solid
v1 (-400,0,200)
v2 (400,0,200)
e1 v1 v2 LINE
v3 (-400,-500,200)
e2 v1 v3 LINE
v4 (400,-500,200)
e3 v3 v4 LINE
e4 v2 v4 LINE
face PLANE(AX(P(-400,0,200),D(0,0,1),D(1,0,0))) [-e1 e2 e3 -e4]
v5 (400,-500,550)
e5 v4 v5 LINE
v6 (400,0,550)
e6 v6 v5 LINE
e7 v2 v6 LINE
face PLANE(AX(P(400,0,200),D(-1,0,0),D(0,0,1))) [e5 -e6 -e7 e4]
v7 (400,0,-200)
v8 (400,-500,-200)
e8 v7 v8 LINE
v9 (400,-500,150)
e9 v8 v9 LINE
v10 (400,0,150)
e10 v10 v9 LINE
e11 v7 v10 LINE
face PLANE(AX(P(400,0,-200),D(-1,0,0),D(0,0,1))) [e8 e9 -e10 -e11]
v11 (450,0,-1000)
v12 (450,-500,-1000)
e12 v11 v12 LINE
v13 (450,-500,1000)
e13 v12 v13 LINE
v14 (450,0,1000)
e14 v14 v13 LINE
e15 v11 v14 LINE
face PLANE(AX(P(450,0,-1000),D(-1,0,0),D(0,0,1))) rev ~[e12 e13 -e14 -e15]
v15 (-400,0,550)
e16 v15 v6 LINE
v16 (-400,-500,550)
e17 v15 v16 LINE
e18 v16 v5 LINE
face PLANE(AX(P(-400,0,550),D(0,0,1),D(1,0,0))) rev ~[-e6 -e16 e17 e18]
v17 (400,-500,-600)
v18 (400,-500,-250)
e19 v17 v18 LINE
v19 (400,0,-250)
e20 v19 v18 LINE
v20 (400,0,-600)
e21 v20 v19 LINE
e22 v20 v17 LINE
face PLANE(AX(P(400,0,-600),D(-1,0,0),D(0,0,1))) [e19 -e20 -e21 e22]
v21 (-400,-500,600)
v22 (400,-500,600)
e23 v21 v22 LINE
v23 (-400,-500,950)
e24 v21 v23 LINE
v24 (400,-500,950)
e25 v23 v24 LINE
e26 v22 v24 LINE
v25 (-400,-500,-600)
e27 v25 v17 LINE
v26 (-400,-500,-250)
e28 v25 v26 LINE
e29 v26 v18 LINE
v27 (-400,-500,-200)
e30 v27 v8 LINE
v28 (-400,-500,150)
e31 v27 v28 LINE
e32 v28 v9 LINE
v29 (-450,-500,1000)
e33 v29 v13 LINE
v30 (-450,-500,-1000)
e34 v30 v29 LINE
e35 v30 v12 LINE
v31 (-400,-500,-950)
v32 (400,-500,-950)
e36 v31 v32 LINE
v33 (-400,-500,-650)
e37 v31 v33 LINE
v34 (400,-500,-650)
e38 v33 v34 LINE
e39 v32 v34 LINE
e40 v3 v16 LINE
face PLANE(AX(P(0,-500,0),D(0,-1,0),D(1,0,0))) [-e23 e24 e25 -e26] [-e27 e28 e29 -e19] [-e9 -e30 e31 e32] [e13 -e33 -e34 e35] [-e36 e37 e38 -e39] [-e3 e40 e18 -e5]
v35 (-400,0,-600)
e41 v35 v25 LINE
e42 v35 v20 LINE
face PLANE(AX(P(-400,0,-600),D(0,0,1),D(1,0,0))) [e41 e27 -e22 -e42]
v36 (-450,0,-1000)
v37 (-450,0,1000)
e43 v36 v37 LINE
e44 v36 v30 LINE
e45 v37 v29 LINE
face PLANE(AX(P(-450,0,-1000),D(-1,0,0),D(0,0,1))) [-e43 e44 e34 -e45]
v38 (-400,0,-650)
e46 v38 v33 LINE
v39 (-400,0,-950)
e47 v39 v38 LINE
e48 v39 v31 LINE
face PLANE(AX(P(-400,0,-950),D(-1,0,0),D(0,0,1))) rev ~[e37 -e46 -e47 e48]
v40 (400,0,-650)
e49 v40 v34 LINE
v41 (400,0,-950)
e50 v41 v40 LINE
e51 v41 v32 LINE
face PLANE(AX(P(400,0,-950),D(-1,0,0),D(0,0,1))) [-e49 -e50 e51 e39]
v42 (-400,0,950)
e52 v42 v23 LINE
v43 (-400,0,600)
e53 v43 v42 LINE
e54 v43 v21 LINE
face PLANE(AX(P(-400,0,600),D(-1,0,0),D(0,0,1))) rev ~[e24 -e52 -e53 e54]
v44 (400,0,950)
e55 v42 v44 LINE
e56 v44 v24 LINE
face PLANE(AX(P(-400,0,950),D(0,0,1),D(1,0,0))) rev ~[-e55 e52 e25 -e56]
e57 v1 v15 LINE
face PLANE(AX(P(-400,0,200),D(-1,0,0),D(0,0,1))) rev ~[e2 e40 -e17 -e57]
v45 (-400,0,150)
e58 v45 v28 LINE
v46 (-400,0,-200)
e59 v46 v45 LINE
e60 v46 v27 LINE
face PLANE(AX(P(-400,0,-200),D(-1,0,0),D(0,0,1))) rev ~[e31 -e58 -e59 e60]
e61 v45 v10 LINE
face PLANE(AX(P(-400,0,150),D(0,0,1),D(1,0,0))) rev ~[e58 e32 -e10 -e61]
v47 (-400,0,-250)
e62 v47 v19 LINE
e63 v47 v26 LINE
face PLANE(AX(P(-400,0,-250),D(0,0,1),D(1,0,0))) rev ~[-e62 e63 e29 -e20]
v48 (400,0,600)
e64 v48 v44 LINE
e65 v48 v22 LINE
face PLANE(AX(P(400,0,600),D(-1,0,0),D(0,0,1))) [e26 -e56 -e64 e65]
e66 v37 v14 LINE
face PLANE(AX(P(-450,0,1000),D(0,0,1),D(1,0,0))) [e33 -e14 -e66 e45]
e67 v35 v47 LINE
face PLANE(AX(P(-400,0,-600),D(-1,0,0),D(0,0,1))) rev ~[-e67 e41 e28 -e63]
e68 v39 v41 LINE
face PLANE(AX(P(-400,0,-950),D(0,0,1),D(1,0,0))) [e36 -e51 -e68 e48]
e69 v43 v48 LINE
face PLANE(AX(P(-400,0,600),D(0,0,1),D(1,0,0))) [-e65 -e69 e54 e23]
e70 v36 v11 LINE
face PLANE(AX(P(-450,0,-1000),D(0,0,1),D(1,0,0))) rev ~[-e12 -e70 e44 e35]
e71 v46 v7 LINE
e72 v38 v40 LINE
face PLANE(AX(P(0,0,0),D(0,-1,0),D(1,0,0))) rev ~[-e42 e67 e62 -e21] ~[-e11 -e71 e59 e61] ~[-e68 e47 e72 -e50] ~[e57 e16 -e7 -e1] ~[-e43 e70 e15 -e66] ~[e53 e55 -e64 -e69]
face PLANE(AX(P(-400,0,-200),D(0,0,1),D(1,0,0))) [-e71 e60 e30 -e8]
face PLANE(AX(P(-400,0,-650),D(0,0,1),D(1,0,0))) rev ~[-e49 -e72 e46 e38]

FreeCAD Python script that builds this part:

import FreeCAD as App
import Part
import Sketcher
Q = App.Units.Quantity


def add_polygon(sketch, points):
    """Adds a closed chain of lines whose ends are joined by coincident constraints."""
    first, n = sketch.GeometryCount, len(points)
    for a, b in zip(points, points[1:] + points[:1]):
        sketch.addGeometry(Part.LineSegment(App.Vector(*a, 0), App.Vector(*b, 0)), False)
    for i in range(n):
        sketch.addConstraint(Sketcher.Constraint("Coincident", first + i, 2, first + (i + 1) % n, 1))

doc = App.newDocument("Part")
body = doc.addObject("PartDesign::Body", "Body")

sketch1 = doc.addObject("Sketcher::SketchObject", "Sketch")
body.addObject(sketch1)
sketch1.AttachmentSupport = (doc.XZ_Plane, [""])
sketch1.MapMode = "FlatFace"
add_polygon(sketch1, [(-450, 1000), (-450, -1000), (450, -1000), (450, 1000)])
add_polygon(sketch1, [(400, -950), (-400, -950), (-400, -650), (400, -650)])
add_polygon(sketch1, [(400, -600), (-400, -600), (-400, -250), (400, -250)])
add_polygon(sketch1, [(400, -200), (-400, -200), (-400, 150), (400, 150)])
add_polygon(sketch1, [(400, 200), (-400, 200), (-400, 550), (400, 550)])
add_polygon(sketch1, [(400, 600), (-400, 600), (-400, 950), (400, 950)])
sketch1.addConstraint([
    Sketcher.Constraint("Vertical", 0),
    Sketcher.Constraint("Horizontal", 1),
    Sketcher.Constraint("Vertical", 2),
    Sketcher.Constraint("Horizontal", 3),
    Sketcher.Constraint("Horizontal", 4),
    Sketcher.Constraint("Vertical", 5),
    Sketcher.Constraint("Horizontal", 6),
    Sketcher.Constraint("Vertical", 7),
    Sketcher.Constraint("Horizontal", 8),
    Sketcher.Constraint("Vertical", 9),
    Sketcher.Constraint("Horizontal", 10),
    Sketcher.Constraint("Vertical", 11),
    Sketcher.Constraint("Horizontal", 12),
    Sketcher.Constraint("Vertical", 13),
    Sketcher.Constraint("Horizontal", 14),
    Sketcher.Constraint("Vertical", 15),
    Sketcher.Constraint("Horizontal", 16),
    Sketcher.Constraint("Vertical", 17),
    Sketcher.Constraint("Horizontal", 18),
    Sketcher.Constraint("Vertical", 19),
    Sketcher.Constraint("Horizontal", 20),
    Sketcher.Constraint("Vertical", 21),
    Sketcher.Constraint("Horizontal", 22),
    Sketcher.Constraint("Vertical", 23),
    Sketcher.Constraint("Symmetric", 0, 2, 2, 2, -1, 1),
    Sketcher.Constraint("Symmetric", 15, 2, 16, 2, -1, 1),
    Sketcher.Constraint("Symmetric", 11, 2, 20, 2, -1, 1),
    Sketcher.Constraint("Symmetric", 7, 2, 21, 2, -1, 1),
    Sketcher.Constraint("Vertical", 5, 2, 8, 2),
    Sketcher.Constraint("Vertical", 9, 2, 12, 2),
    Sketcher.Constraint("Vertical", 11, 2, 14, 2),
    Sketcher.Constraint("Vertical", 13, 2, 16, 2),
    Sketcher.Constraint("Vertical", 15, 2, 18, 2),
    Sketcher.Constraint("Vertical", 19, 2, 22, 2),
    Sketcher.Constraint("Equal", 11, 13),
    Sketcher.Constraint("Equal", 15, 17),
    Sketcher.Constraint("Equal", 19, 21),
    Sketcher.Constraint("DistanceX", 1, 1, 1, 2, Q("900 mm")),
    Sketcher.Constraint("DistanceX", 4, 2, 4, 1, Q("800 mm")),
    Sketcher.Constraint("DistanceY", 0, 2, 0, 1, Q("2000 mm")),
    Sketcher.Constraint("DistanceY", 5, 1, 5, 2, Q("300 mm")),
    Sketcher.Constraint("DistanceY", 9, 1, 9, 2, Q("350 mm")),
    Sketcher.Constraint("DistanceY", 4, 2, -1, 1, Q("950 mm")),
    Sketcher.Constraint("DistanceY", 12, 2, -1, 1, Q("200 mm")),
])
pad1 = doc.addObject("PartDesign::Pad", "Pad")
body.addObject(pad1)
pad1.Profile = sketch1
pad1.Length = 500

doc.recompute()
